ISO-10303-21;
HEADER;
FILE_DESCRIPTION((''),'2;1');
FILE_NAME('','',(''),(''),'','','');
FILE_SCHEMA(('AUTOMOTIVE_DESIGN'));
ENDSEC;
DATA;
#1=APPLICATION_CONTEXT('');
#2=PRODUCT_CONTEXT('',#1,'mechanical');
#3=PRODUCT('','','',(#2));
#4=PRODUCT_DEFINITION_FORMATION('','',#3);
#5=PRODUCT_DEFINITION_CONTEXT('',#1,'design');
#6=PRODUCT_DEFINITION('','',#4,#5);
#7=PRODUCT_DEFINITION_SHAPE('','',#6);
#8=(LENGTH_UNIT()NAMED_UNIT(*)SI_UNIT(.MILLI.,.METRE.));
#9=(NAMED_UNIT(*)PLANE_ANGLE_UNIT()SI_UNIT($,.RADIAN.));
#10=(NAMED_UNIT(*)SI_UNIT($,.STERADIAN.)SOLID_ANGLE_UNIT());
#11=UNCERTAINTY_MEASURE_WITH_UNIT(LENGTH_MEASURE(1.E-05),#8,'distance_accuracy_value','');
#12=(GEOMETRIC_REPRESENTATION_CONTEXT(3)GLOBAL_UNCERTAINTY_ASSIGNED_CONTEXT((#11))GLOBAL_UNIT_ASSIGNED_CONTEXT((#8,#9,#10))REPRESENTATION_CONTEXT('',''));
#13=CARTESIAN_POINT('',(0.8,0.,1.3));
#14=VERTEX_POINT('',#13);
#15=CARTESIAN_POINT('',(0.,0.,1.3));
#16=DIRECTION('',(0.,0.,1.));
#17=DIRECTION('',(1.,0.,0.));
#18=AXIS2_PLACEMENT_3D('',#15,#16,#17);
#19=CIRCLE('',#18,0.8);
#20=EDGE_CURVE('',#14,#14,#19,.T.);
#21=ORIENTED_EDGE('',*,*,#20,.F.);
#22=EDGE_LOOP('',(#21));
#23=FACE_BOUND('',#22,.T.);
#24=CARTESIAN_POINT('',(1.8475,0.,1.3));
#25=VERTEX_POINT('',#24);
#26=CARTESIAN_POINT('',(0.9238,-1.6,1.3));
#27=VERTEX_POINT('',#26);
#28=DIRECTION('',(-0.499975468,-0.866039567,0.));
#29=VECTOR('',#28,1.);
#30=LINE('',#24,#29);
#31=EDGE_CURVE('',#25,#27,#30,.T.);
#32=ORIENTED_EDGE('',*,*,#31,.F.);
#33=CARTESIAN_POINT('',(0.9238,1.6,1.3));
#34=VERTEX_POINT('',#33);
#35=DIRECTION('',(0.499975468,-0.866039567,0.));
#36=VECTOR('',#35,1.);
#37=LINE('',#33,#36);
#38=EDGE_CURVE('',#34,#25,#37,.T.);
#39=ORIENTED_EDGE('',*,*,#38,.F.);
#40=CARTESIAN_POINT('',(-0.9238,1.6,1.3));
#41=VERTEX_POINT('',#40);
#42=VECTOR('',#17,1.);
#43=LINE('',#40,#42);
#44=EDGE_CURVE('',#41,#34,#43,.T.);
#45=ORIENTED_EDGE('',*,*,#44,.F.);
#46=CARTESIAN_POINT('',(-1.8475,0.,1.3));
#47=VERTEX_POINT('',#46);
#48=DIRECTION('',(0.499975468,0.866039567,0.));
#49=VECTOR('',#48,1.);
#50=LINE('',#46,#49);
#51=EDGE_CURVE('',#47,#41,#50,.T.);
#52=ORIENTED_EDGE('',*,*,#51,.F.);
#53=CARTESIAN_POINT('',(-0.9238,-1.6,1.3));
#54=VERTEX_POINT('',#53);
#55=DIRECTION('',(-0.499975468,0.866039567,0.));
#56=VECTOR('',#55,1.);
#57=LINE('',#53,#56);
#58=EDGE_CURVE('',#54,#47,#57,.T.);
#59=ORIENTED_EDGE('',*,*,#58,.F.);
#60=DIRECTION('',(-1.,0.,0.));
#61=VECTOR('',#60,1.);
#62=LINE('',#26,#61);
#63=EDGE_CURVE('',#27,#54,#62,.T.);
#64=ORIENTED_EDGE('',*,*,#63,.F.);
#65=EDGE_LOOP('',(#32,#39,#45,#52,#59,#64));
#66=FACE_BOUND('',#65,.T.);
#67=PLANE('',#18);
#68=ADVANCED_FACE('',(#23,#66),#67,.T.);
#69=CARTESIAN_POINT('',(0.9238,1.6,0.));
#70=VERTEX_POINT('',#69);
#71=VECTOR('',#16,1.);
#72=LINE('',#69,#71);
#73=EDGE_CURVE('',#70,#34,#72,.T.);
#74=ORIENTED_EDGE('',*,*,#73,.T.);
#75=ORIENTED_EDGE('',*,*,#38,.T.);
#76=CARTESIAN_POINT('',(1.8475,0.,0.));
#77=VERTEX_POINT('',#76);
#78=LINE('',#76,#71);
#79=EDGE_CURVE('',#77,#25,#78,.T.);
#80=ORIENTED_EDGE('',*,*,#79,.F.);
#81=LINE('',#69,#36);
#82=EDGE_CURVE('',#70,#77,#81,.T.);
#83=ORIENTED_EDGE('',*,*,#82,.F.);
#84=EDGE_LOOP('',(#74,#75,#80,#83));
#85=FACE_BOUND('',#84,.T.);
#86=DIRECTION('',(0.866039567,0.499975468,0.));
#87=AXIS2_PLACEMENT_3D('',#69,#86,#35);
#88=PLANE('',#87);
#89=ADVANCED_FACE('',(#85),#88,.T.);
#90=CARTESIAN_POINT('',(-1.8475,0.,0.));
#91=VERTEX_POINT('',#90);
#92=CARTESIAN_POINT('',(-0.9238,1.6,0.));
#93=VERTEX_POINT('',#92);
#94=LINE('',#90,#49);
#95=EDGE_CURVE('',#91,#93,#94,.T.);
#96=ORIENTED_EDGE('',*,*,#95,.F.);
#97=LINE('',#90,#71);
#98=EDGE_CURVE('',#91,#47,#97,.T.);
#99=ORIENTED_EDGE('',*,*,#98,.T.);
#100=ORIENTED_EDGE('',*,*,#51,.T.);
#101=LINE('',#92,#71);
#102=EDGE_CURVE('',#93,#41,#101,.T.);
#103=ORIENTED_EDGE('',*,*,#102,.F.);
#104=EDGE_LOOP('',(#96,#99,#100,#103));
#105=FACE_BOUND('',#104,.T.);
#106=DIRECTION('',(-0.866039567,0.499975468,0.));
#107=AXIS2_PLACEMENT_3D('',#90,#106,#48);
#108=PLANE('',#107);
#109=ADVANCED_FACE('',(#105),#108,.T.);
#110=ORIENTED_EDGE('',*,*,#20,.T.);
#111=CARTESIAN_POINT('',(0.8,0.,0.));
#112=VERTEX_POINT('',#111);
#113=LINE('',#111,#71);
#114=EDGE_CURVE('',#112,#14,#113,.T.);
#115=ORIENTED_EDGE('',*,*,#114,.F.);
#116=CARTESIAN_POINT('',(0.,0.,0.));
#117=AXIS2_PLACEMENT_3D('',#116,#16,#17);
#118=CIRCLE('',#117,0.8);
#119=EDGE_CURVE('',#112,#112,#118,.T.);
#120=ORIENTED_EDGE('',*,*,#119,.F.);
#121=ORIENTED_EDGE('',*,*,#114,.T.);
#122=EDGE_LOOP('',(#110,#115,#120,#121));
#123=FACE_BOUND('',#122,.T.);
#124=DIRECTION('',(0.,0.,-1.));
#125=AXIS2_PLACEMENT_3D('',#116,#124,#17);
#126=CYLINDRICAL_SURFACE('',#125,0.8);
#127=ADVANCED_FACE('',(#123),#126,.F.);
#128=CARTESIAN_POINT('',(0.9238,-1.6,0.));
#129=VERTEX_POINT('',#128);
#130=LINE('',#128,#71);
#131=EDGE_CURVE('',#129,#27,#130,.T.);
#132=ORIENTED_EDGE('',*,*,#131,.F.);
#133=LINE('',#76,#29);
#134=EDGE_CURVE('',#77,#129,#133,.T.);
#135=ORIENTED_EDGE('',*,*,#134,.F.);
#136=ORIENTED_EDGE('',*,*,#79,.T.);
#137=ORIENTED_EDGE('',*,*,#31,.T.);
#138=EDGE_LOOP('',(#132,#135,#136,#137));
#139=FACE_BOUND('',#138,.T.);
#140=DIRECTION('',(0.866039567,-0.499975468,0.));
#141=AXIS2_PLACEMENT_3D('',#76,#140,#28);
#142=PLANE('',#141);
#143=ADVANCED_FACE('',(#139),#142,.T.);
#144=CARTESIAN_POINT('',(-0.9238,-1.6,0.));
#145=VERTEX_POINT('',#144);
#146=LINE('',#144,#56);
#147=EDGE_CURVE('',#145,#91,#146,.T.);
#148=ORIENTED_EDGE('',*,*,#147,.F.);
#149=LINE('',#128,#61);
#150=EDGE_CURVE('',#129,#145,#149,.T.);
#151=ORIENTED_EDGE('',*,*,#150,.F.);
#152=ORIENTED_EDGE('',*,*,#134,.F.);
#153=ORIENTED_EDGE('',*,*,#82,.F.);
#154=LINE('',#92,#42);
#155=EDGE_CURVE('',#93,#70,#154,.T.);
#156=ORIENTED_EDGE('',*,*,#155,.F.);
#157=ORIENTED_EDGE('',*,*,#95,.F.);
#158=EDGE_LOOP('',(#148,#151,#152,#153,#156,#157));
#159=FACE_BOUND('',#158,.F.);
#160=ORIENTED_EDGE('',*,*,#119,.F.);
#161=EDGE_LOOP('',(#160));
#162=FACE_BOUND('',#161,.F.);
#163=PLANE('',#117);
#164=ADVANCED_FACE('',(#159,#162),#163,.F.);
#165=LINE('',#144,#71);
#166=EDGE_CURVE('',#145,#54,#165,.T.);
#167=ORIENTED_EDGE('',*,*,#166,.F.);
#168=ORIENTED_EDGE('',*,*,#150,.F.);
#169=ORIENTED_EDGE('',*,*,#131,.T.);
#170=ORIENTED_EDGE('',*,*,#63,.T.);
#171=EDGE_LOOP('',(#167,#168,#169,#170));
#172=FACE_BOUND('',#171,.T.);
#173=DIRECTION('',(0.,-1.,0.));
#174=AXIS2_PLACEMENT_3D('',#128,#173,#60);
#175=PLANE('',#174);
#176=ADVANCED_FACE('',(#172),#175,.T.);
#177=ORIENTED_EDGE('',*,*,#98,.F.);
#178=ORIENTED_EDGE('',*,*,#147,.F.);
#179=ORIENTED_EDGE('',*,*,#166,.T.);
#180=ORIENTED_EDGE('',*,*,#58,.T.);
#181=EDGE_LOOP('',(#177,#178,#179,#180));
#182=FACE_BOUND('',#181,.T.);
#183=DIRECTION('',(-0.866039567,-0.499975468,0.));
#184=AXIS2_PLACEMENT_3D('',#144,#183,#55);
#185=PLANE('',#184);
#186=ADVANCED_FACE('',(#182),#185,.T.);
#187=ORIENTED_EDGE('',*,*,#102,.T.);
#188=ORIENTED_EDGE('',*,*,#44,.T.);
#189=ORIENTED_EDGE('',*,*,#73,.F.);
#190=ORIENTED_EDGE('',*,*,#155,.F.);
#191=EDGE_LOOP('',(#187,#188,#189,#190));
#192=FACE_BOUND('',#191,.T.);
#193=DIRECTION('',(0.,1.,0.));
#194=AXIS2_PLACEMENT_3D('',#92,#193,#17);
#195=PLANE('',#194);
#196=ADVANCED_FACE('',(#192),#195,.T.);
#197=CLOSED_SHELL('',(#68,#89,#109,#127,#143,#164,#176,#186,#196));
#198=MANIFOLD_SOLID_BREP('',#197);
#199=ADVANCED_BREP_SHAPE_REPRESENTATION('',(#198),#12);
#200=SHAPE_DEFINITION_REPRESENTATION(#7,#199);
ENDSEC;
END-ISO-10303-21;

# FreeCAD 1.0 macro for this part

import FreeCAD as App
import Part
import Sketcher

V = App.Vector
Q = App.Units.Quantity

doc = App.newDocument("Part")
params = doc.addObject("Spreadsheet::Sheet", "Params")
for row, (alias, value) in enumerate([
    ("sketch1_diameter", "1.6 mm"),
    ("pad1_length", "1.3 mm"),
], start=1):
    params.set(f"A{row}", alias)
    params.set(f"B{row}", "=" + value)
    params.setAlias(f"B{row}", alias)

body = doc.addObject("PartDesign::Body", "Body")

# Sketch on XY plane
sketch1 = body.newObject("Sketcher::SketchObject", "Sketch")
sketch1.AttachmentSupport = (doc.getObject("XY_Plane"), [""])
sketch1.MapMode = "FlatFace"
sketch1.addGeometry([
    Part.LineSegment(V(1.8475, 0, 0), V(0.9238, 1.6, 0)),  # 0
    Part.LineSegment(V(0.9238, 1.6, 0), V(-0.9238, 1.6, 0)),  # 1
    Part.LineSegment(V(-0.9238, 1.6, 0), V(-1.8475, 0, 0)),  # 2
    Part.LineSegment(V(-1.8475, 0, 0), V(-0.9238, -1.6, 0)),  # 3
    Part.LineSegment(V(-0.9238, -1.6, 0), V(0.9238, -1.6, 0)),  # 4
    Part.LineSegment(V(0.9238, -1.6, 0), V(1.8475, 0, 0)),  # 5
    Part.Circle(V(0, 0, 0), V(0, 0, 1), 0.8),  # 6
], False)
sketch1.addConstraint([
    Sketcher.Constraint("Coincident", 0, 2, 1, 1),
    Sketcher.Constraint("Coincident", 1, 2, 2, 1),
    Sketcher.Constraint("Coincident", 2, 2, 3, 1),
    Sketcher.Constraint("Coincident", 3, 2, 4, 1),
    Sketcher.Constraint("Coincident", 4, 2, 5, 1),
    Sketcher.Constraint("Coincident", 5, 2, 0, 1),
    Sketcher.Constraint("Horizontal", 1),
    Sketcher.Constraint("Horizontal", 4),
    Sketcher.Constraint("Coincident", 6, 3, -1, 1),
    Sketcher.Constraint("Symmetric", 0, 2, 3, 2, -1, 1),
    Sketcher.Constraint("Symmetric", 2, 2, 5, 2, -1, 1),
    Sketcher.Constraint("PointOnObject", 2, 2, -1),
    Sketcher.Constraint("Parallel", 2, 5),
    Sketcher.Constraint("Vertical", 1, 2, 3, 2),
    Sketcher.Constraint("Diameter", 6, Q("1.6 mm")),
    Sketcher.Constraint("DistanceY", -1, 1, 0, 2, Q("1.6 mm")),
    Sketcher.Constraint("DistanceX", 1, 2, 1, 1, Q("1.8476 mm")),
    Sketcher.Constraint("Distance", 0, Q("1.8475 mm")),
])
sketch1.setExpression("Constraints[14]", "Params.sketch1_diameter")
pad1 = body.newObject("PartDesign::Pad", "Pad")
pad1.Profile = sketch1
pad1.setExpression("Length", "Params.pad1_length")

doc.recompute()
